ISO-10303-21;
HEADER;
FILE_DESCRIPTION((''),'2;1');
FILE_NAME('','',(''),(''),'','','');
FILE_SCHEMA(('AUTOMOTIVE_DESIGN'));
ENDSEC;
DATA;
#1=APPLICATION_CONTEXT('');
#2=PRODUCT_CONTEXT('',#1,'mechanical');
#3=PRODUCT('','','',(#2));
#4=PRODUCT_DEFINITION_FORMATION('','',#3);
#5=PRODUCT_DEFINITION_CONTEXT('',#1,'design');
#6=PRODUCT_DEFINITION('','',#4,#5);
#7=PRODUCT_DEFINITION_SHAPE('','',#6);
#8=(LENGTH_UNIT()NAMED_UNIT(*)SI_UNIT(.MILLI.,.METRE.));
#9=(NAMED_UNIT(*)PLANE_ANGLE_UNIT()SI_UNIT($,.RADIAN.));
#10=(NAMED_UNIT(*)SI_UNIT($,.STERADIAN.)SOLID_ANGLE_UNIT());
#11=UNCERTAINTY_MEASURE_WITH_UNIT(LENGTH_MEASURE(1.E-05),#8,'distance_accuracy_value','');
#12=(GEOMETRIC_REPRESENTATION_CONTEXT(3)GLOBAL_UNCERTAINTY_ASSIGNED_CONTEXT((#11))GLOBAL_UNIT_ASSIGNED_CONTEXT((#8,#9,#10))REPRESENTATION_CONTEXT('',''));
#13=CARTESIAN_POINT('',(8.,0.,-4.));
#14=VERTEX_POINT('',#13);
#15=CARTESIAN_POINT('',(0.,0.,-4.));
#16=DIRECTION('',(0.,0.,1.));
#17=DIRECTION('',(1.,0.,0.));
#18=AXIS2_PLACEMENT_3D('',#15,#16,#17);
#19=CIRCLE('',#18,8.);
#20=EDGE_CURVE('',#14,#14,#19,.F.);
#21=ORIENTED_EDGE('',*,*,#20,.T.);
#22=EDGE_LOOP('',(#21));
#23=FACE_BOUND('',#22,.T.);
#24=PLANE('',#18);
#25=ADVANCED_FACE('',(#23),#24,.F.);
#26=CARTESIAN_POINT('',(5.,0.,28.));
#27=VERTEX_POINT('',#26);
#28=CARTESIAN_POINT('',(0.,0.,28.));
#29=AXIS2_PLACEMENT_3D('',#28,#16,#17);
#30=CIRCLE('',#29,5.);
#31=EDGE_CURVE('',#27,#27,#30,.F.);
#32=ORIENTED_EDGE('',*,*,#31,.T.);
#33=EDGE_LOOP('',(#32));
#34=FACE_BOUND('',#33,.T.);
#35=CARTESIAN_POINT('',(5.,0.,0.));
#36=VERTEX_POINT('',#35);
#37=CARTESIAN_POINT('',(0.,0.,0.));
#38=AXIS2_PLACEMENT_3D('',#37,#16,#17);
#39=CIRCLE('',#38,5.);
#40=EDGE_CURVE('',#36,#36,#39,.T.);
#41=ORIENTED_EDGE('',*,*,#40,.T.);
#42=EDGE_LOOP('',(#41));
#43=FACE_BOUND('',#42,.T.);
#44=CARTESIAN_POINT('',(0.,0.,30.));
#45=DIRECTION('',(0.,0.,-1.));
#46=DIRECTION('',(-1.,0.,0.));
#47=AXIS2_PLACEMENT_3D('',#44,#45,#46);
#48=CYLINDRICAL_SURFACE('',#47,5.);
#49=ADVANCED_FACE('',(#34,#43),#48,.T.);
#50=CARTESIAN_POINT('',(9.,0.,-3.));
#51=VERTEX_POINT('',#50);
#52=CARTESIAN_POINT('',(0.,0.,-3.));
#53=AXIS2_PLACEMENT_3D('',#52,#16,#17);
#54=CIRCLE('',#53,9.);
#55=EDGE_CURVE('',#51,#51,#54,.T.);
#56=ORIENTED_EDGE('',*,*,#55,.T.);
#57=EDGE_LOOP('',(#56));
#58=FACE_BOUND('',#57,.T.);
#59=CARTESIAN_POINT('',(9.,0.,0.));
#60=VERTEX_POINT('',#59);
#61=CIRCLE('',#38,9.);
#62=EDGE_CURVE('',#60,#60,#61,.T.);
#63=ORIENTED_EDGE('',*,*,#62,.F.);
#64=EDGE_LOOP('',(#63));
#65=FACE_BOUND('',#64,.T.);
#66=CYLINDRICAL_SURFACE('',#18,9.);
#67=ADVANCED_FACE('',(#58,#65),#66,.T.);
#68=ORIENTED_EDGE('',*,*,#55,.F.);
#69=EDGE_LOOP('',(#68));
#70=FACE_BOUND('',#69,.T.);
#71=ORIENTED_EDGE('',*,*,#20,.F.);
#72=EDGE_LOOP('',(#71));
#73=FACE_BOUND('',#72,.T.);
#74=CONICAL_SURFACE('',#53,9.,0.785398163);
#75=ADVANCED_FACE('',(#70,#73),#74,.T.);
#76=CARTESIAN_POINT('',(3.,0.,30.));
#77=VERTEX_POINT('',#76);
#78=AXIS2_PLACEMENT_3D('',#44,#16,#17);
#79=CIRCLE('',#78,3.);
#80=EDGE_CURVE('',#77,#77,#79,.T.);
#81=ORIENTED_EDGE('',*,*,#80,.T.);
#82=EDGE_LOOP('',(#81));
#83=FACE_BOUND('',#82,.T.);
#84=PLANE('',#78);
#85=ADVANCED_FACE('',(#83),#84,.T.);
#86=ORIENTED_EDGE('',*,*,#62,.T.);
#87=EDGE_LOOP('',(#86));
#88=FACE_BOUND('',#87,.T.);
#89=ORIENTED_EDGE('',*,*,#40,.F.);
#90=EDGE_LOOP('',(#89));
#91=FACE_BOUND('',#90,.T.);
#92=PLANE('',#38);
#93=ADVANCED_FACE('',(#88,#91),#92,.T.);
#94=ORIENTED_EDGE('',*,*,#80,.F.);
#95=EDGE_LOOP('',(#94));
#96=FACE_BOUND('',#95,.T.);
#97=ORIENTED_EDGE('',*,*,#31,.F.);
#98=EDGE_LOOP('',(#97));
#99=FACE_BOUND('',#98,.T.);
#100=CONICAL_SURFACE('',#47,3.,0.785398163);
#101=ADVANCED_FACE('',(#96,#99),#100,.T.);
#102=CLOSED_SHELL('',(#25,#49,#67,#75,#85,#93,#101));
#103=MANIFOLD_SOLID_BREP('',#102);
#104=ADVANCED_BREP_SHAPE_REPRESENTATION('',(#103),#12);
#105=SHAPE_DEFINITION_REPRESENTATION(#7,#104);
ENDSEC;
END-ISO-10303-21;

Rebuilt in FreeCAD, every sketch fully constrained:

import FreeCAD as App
import Part
import Sketcher
from FreeCAD import Vector
Q = App.Units.Quantity


def edges_at(feature, points):
    """Names of the edges that pass closest to the given points."""
    edges = feature.Shape.Edges
    near = lambda p: min(range(len(edges)), key=lambda i: edges[i].distToShape(Part.Vertex(*p))[0])
    return sorted({f"Edge{near(p) + 1}" for p in points})

doc = App.newDocument("Part")
body = doc.addObject("PartDesign::Body", "Body")

# Sketch on XY plane
sketch1 = body.newObject("Sketcher::SketchObject", "Sketch")
sketch1.AttachmentSupport = (doc.getObject("XY_Plane"), [""])
sketch1.MapMode = "FlatFace"
sketch1.addGeometry(Part.Circle(Vector(0, 0, 0), Vector(0, 0, 1), 5), False)
sketch1.addConstraint(Sketcher.Constraint("Coincident", 0, 3, -1, 1))
sketch1.addConstraint(Sketcher.Constraint("Diameter", 0, Q("10 mm")))
pad1 = body.newObject("PartDesign::Pad", "Pad")
pad1.Profile = sketch1
pad1.Length = 30

# Sketch on XY plane
sketch2 = body.newObject("Sketcher::SketchObject", "Sketch001")
sketch2.AttachmentSupport = (doc.getObject("XY_Plane"), [""])
sketch2.MapMode = "FlatFace"
sketch2.addGeometry(Part.Circle(Vector(0, 0, 0), Vector(0, 0, 1), 9), False)
sketch2.addConstraint(Sketcher.Constraint("Coincident", 0, 3, -1, 1))
sketch2.addConstraint(Sketcher.Constraint("Diameter", 0, Q("18 mm")))
pad2 = body.newObject("PartDesign::Pad", "Pad001")
pad2.Profile = sketch2
pad2.Length = 4
pad2.Reversed = True
doc.recompute()

chamfer = body.newObject("PartDesign::Chamfer", "Chamfer")
chamfer.Base = (pad2, edges_at(pad2, [(-9, 0, -4)]))
chamfer.Size = 1
doc.recompute()

chamfer2 = body.newObject("PartDesign::Chamfer", "Chamfer001")
chamfer2.Base = (chamfer, edges_at(chamfer, [(-5, 0, 30)]))
chamfer2.Size = 2

doc.recompute()
